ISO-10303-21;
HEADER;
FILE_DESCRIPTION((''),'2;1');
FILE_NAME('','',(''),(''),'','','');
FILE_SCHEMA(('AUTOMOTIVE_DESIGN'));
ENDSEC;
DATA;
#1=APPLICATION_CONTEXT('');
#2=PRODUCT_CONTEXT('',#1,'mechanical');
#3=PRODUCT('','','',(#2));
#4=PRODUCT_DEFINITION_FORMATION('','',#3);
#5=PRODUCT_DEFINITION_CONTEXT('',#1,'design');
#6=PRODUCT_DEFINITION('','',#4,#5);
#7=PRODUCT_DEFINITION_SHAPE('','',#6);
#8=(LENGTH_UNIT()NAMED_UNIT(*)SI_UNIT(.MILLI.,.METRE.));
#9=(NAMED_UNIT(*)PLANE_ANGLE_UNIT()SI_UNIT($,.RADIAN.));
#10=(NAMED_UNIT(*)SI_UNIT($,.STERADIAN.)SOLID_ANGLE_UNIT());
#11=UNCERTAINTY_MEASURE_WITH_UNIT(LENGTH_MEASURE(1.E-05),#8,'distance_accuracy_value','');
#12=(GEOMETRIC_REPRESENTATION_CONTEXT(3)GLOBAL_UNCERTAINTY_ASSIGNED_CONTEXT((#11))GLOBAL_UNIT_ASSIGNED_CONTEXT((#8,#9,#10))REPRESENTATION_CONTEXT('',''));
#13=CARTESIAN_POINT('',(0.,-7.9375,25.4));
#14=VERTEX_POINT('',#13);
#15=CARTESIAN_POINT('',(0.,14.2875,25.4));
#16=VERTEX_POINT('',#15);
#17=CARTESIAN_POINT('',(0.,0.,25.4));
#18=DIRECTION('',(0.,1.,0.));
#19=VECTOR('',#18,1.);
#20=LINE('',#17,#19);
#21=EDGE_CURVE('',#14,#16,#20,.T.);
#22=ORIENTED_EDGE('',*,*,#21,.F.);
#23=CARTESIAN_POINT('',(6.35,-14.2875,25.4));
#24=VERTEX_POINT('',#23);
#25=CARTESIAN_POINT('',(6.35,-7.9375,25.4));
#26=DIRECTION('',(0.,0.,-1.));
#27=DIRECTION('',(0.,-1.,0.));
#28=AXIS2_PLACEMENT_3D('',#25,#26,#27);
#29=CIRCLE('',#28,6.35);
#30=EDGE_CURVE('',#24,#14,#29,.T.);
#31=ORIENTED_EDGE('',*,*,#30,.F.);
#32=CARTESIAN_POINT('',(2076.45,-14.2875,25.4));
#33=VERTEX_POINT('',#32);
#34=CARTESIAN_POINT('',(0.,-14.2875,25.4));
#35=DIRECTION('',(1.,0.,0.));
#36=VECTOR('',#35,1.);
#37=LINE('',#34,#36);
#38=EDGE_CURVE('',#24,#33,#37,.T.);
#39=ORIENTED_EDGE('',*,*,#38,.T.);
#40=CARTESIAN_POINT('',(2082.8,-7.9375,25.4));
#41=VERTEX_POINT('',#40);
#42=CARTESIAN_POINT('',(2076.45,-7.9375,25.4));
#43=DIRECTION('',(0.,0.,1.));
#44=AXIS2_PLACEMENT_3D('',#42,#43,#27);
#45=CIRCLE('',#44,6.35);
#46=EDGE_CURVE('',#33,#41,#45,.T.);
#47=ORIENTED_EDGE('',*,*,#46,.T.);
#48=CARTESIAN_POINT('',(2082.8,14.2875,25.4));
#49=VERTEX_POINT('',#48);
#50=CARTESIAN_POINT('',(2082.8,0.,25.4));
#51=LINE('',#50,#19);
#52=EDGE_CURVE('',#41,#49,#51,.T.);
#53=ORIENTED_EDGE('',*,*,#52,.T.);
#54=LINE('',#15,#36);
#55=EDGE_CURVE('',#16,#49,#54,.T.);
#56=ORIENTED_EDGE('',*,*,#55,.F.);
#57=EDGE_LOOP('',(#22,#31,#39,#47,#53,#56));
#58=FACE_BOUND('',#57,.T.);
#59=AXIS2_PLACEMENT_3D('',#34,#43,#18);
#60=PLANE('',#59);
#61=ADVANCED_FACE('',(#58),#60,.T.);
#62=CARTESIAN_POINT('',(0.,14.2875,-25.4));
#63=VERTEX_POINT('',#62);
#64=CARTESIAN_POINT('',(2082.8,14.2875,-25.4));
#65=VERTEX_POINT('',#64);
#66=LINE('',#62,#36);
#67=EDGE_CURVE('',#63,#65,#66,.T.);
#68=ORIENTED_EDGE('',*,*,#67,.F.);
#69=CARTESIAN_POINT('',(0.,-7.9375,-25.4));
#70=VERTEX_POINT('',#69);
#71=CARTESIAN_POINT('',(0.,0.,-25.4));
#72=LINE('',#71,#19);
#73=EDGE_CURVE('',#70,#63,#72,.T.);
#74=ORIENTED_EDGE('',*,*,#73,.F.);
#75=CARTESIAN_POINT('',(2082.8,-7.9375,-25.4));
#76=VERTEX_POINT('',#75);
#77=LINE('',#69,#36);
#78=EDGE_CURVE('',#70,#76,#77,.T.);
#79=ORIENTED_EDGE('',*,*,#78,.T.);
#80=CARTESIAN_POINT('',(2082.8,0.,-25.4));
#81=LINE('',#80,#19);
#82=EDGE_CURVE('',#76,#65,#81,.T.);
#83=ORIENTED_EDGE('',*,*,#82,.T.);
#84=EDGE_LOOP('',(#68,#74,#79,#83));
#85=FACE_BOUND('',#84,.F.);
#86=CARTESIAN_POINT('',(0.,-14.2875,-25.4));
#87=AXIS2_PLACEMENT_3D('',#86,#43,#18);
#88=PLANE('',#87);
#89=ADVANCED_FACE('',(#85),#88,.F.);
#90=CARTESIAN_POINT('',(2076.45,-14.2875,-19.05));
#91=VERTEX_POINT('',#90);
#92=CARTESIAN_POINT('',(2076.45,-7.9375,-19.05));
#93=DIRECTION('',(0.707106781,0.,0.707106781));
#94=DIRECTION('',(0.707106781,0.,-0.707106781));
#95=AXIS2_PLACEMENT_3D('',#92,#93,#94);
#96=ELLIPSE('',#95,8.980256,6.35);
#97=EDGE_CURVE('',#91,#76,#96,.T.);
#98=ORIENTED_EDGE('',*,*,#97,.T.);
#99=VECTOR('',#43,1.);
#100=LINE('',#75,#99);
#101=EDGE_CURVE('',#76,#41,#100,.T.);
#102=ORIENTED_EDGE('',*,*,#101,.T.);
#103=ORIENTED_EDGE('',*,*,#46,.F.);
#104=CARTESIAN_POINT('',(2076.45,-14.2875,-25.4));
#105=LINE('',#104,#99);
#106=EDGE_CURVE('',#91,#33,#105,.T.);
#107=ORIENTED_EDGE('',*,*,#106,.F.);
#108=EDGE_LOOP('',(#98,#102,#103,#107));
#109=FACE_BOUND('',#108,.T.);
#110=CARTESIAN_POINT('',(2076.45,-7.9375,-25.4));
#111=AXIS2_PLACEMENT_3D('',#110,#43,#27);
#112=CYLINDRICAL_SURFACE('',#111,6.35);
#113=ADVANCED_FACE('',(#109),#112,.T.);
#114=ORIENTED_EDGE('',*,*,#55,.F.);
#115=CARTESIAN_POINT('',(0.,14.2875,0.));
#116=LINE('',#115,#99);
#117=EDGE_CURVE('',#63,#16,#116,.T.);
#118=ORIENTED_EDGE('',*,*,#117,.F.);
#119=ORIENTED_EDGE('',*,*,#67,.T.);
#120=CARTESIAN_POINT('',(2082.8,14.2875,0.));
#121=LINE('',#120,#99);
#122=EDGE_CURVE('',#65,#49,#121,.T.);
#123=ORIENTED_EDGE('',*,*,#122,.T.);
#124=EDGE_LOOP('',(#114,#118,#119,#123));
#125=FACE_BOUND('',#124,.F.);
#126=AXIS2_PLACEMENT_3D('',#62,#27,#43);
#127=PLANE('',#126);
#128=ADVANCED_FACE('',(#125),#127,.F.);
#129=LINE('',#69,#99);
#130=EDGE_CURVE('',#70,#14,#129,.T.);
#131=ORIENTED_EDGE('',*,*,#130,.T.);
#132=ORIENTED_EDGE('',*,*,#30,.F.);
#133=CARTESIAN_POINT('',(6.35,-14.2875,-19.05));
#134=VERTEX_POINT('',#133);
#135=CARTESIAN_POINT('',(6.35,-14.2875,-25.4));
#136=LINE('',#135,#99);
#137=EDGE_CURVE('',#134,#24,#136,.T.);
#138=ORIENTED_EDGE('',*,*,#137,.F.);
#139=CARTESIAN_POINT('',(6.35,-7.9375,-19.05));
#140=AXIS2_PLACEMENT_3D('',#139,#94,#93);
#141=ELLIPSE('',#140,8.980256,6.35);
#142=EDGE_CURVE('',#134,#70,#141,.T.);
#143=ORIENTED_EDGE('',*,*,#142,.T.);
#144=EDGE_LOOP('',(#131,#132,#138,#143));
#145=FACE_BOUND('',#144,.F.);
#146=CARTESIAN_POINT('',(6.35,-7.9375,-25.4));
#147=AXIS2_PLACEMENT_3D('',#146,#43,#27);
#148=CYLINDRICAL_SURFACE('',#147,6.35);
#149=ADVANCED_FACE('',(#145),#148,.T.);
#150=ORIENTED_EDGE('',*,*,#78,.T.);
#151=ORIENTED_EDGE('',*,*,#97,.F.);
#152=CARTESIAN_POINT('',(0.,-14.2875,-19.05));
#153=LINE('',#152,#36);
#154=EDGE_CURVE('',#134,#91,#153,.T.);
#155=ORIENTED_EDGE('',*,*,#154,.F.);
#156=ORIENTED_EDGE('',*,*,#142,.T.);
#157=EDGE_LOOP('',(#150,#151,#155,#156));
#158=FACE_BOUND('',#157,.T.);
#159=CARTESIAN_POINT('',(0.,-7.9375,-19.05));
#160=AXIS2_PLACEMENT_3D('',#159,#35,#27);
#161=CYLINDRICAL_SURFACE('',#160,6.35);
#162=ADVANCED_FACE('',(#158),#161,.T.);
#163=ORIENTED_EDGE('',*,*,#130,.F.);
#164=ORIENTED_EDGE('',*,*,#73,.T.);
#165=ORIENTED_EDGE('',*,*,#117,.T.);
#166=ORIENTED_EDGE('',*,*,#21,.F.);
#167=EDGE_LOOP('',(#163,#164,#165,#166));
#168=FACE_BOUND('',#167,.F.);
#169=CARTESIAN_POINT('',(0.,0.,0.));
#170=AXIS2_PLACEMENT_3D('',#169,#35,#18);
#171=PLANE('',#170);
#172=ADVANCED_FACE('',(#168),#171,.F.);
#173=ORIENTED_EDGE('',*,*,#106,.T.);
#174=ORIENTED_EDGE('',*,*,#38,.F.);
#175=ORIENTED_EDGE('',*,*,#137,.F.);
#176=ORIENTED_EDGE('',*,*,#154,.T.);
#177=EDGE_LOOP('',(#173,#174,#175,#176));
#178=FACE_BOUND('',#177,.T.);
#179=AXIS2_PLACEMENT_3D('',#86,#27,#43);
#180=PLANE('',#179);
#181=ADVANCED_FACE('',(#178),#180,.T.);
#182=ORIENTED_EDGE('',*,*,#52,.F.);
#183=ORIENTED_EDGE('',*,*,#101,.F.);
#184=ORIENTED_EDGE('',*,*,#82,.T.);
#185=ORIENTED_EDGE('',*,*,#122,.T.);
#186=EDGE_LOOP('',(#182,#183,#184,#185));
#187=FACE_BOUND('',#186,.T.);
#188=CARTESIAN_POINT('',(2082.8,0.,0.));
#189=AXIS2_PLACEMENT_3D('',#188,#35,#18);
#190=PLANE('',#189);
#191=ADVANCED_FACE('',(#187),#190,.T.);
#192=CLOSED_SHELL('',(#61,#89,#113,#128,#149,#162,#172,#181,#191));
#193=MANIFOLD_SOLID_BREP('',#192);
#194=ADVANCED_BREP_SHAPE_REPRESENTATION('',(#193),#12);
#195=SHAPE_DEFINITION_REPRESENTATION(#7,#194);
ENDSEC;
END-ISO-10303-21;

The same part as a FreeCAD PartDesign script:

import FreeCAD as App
import Part
import Sketcher
Q = App.Units.Quantity


def edges_at(feature, points):
    """Names of the edges that pass closest to the given points."""
    edges = feature.Shape.Edges
    near = lambda p: min(range(len(edges)), key=lambda i: edges[i].distToShape(Part.Vertex(*p))[0])
    return sorted({f"Edge{near(p) + 1}" for p in points})


def add_polygon(sketch, points):
    """Adds a closed chain of lines whose ends are joined by coincident constraints."""
    first, n = sketch.GeometryCount, len(points)
    for a, b in zip(points, points[1:] + points[:1]):
        sketch.addGeometry(Part.LineSegment(App.Vector(*a, 0), App.Vector(*b, 0)), False)
    for i in range(n):
        sketch.addConstraint(Sketcher.Constraint("Coincident", first + i, 2, first + (i + 1) % n, 1))

doc = App.newDocument("Part")
body = doc.addObject("PartDesign::Body", "Body")

# Sketch on YZ plane
sketch1 = doc.addObject("Sketcher::SketchObject", "Sketch")
body.addObject(sketch1)
sketch1.AttachmentSupport = (doc.YZ_Plane, [""])
sketch1.MapMode = "FlatFace"
add_polygon(sketch1, [(-14, 25), (-14, -25), (14, -25), (14, 25)])  # lines 0-3
sketch1.addConstraint(Sketcher.Constraint("Vertical", 0))
sketch1.addConstraint(Sketcher.Constraint("Horizontal", 1))
sketch1.addConstraint(Sketcher.Constraint("Vertical", 2))
sketch1.addConstraint(Sketcher.Constraint("Horizontal", 3))
sketch1.addConstraint(Sketcher.Constraint("Symmetric", 0, 2, 2, 2, -1, 1))
sketch1.addConstraint(Sketcher.Constraint("DistanceY", 0, 2, 0, 1, Q("2 in")))
sketch1.addConstraint(Sketcher.Constraint("DistanceX", 1, 1, 1, 2, Q("1.125 in")))
pad1 = doc.addObject("PartDesign::Pad", "Pad")
body.addObject(pad1)
pad1.Profile = sketch1
pad1.Length = Q("82 in")
doc.recompute()

fillet = doc.addObject("PartDesign::Fillet", "Fillet")
body.addObject(fillet)
fillet.Base = (pad1, edges_at(pad1, [(0, -14.287, 0), (1041.4, -14.287, -25.4), (2082.8, -14.287, 0)]))
fillet.Radius = Q("0.25 in")

doc.recompute()
